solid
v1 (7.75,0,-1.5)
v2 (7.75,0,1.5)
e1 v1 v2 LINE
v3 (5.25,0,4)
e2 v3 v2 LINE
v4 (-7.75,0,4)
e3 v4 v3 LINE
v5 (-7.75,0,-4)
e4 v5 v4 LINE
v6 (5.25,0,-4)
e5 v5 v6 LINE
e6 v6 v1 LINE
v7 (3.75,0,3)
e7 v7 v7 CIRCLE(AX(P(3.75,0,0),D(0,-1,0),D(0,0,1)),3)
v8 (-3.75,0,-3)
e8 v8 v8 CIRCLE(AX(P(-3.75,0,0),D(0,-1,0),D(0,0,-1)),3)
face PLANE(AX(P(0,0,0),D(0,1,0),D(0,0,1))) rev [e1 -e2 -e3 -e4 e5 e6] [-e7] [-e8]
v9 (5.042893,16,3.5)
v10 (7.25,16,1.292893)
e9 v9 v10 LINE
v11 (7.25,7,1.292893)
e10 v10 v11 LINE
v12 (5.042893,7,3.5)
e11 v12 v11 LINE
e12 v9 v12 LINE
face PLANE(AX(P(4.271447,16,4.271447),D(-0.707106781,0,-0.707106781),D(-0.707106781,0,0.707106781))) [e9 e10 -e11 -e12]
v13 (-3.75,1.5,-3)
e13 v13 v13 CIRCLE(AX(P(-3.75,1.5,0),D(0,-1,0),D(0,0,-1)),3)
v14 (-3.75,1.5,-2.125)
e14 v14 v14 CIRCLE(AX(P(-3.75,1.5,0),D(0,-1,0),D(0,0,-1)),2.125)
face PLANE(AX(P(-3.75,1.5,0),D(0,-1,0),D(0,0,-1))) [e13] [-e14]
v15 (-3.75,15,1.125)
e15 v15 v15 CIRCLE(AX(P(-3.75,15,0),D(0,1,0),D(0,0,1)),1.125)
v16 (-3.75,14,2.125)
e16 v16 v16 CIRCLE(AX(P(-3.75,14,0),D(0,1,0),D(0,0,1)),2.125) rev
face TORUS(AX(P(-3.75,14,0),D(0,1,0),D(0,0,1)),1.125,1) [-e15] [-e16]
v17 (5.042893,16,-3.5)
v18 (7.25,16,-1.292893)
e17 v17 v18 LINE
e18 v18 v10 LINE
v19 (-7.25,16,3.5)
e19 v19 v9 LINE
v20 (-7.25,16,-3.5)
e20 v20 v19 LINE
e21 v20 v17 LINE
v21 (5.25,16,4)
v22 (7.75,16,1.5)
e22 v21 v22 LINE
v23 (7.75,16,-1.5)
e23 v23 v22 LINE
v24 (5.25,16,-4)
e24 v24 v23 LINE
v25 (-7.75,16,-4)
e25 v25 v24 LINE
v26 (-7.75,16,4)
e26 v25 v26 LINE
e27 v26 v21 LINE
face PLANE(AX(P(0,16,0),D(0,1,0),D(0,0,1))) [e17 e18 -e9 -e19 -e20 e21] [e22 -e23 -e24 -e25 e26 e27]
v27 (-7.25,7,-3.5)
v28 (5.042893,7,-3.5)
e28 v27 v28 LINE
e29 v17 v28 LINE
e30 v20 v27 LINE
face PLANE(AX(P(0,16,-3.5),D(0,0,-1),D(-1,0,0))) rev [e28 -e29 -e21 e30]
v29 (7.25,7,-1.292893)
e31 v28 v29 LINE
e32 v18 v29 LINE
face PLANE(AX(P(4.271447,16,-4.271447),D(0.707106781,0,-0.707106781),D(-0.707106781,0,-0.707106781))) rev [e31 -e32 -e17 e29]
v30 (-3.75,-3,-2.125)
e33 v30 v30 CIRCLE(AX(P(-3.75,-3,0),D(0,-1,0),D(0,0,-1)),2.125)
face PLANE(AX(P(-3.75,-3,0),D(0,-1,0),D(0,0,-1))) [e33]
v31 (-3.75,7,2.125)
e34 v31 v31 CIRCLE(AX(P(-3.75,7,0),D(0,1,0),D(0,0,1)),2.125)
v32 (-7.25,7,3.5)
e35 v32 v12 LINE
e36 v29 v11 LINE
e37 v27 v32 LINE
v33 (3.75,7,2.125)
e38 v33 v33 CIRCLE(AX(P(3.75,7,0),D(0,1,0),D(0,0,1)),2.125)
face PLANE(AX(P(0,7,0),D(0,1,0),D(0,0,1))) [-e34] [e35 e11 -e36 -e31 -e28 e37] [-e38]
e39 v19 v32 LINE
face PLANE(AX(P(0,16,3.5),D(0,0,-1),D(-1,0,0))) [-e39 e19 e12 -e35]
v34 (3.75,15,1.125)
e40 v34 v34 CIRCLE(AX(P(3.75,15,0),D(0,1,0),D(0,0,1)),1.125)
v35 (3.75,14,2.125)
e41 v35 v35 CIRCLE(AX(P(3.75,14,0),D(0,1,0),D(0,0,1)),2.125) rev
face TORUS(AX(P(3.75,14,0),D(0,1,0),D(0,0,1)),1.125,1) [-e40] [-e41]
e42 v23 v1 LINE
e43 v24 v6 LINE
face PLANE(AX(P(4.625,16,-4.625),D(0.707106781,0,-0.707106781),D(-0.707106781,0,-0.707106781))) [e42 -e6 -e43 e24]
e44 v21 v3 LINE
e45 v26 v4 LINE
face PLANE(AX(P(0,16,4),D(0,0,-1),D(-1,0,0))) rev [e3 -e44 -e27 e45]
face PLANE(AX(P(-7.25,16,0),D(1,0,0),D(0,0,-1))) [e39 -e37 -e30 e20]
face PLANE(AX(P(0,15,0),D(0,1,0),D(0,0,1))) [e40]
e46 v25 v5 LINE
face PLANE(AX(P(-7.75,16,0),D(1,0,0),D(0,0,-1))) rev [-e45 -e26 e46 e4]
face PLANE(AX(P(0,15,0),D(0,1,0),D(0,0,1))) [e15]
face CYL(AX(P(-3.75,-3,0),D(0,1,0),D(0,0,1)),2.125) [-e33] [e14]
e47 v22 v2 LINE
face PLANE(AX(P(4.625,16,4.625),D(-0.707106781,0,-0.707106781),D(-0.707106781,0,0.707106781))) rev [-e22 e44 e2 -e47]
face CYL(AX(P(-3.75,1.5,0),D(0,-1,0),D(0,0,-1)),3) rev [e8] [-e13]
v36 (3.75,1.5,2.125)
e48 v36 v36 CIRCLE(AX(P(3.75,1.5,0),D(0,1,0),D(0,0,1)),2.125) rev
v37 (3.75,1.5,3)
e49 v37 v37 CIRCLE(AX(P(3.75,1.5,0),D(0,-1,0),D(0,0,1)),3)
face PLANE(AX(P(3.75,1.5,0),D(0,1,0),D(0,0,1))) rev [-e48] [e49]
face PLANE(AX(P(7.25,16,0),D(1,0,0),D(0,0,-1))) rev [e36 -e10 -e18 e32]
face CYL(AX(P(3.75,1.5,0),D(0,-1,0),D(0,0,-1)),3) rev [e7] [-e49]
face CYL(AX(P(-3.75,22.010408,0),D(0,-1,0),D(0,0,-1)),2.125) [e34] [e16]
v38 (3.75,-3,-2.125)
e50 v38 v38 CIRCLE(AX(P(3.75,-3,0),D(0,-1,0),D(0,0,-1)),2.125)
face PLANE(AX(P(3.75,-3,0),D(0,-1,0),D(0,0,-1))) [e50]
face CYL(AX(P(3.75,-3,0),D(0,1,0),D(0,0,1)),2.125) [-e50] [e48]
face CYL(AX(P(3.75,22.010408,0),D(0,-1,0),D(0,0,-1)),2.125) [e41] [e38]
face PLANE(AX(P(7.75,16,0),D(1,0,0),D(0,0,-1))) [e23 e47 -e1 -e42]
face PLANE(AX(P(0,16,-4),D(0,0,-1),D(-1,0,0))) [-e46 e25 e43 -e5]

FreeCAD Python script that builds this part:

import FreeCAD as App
import Part
import Sketcher

V = App.Vector
Q = App.Units.Quantity


def edges_at(feature, points):
    """Names of the edges that pass closest to the given points."""
    edges = feature.Shape.Edges
    near = lambda p: min(range(len(edges)), key=lambda i: edges[i].distToShape(Part.Vertex(*p))[0])
    return sorted({f"Edge{near(p) + 1}" for p in points})


def faces_at(feature, points):
    """Names of the faces that lie closest to the given points."""
    faces = feature.Shape.Faces
    near = lambda p: min(range(len(faces)), key=lambda i: faces[i].distToShape(Part.Vertex(*p))[0])
    return sorted({f"Face{near(p) + 1}" for p in points})


def add_polygon(sketch, points):
    """Adds a closed chain of lines whose ends are joined by coincident constraints."""
    first, n = sketch.GeometryCount, len(points)
    for a, b in zip(points, points[1:] + points[:1]):
        sketch.addGeometry(Part.LineSegment(App.Vector(*a, 0), App.Vector(*b, 0)), False)
    for i in range(n):
        sketch.addConstraint(Sketcher.Constraint("Coincident", first + i, 2, first + (i + 1) % n, 1))

doc = App.newDocument("Part")
body = doc.addObject("PartDesign::Body", "Body")

sketch1 = doc.addObject("Sketcher::SketchObject", "Sketch")
body.addObject(sketch1)
sketch1.AttachmentSupport = (doc.XZ_Plane, [""])
sketch1.MapMode = "FlatFace"
add_polygon(sketch1, [(7.75, -1.5), (5.25, -4), (-7.75, -4), (-7.75, 4), (5.25, 4), (7.75, 1.5)])
sketch1.addConstraint([
    Sketcher.Constraint("Horizontal", 1),
    Sketcher.Constraint("Vertical", 2),
    Sketcher.Constraint("Horizontal", 3),
    Sketcher.Constraint("Vertical", 5),
    Sketcher.Constraint("Symmetric", 0, 2, 3, 2, -1),
    Sketcher.Constraint("Perpendicular", 0, 4),
    Sketcher.Constraint("Equal", 0, 4),
    Sketcher.Constraint("DistanceX", 1, 2, 1, 1, Q("13 mm")),
    Sketcher.Constraint("DistanceY", 2, 1, 2, 2, Q("8 mm")),
    Sketcher.Constraint("DistanceY", 5, 2, 5, 1, Q("3 mm")),
    Sketcher.Constraint("DistanceX", -1, 1, 0, 2, Q("5.25 mm")),
])
pad1 = doc.addObject("PartDesign::Pad", "Pad")
body.addObject(pad1)
pad1.Profile = sketch1
pad1.Length = 16
pad1.Reversed = True
doc.recompute()

thickness = doc.addObject("PartDesign::Thickness", "Thickness")
body.addObject(thickness)
thickness.Base = (pad1, faces_at(pad1, [(0, 16, 0)]))
thickness.Value = 0.5
thickness.Reversed = True
thickness.Join = "Intersection"

sketch2 = doc.addObject("Sketcher::SketchObject", "Sketch001")
body.addObject(sketch2)
sketch2.AttachmentSupport = (doc.XZ_Plane, [""])
sketch2.MapMode = "FlatFace"
sketch2.AttachmentOffset = App.Placement(V(0, 0, -0.5), App.Rotation())
add_polygon(sketch2, [(7.25, -1.292893), (7.25, 1.292893), (5.042893, 3.5), (-7.25, 3.5), (-7.25, -3.5), (5.042893, -3.5)])
sketch2.addConstraint([
    Sketcher.Constraint("Vertical", 0),
    Sketcher.Constraint("Horizontal", 2),
    Sketcher.Constraint("Vertical", 3),
    Sketcher.Constraint("Horizontal", 4),
    Sketcher.Constraint("Symmetric", 1, 2, 4, 2, -1),
    Sketcher.Constraint("Perpendicular", 1, 5),
    Sketcher.Constraint("Equal", 1, 5),
    Sketcher.Constraint("DistanceY", 3, 2, 3, 1, Q("7 mm")),
    Sketcher.Constraint("DistanceX", 2, 2, 0, 2, Q("14.5 mm")),
    Sketcher.Constraint("DistanceX", -1, 1, 0, 2, Q("7.25 mm")),
    Sketcher.Constraint("Distance", 1, Q("3.12132 mm")),
])
pad2 = doc.addObject("PartDesign::Pad", "Pad001")
body.addObject(pad2)
pad2.Profile = sketch2
pad2.Length = 6.5
pad2.Reversed = True

sketch3 = doc.addObject("Sketcher::SketchObject", "Sketch002")
body.addObject(sketch3)
sketch3.AttachmentSupport = (doc.XZ_Plane, [""])
sketch3.MapMode = "FlatFace"
sketch3.addGeometry([
    Part.Circle(V(-3.75, 0, 0), V(0, 0, 1), 3),
    Part.Circle(V(3.75, 0, 0), V(0, 0, 1), 3),
], False)
sketch3.addConstraint([
    Sketcher.Constraint("Equal", 0, 1),
    Sketcher.Constraint("Symmetric", 0, 3, 1, 3, -1, 1),
    Sketcher.Constraint("PointOnObject", 0, 3, -1),
    Sketcher.Constraint("Diameter", 0, Q("6 mm")),
    Sketcher.Constraint("DistanceX", 0, 3, 1, 3, Q("7.5 mm")),
])
pocket1 = doc.addObject("PartDesign::Pocket", "Pocket")
body.addObject(pocket1)
pocket1.Profile = sketch3
pocket1.Length = 1.5

sketch4 = doc.addObject("Sketcher::SketchObject", "Sketch003")
body.addObject(sketch4)
sketch4.AttachmentSupport = (doc.XZ_Plane, [""])
sketch4.MapMode = "FlatFace"
sketch4.AttachmentOffset = App.Placement(V(0, 0, -1.5), App.Rotation())
sketch4.addGeometry([
    Part.Circle(V(-3.75, 0, 0), V(0, 0, 1), 2.125),
    Part.Circle(V(3.75, 0, 0), V(0, 0, 1), 2.125),
], False)
sketch4.addConstraint([
    Sketcher.Constraint("Equal", 0, 1),
    Sketcher.Constraint("Symmetric", 0, 3, 1, 3, -1, 1),
    Sketcher.Constraint("PointOnObject", 0, 3, -1),
    Sketcher.Constraint("Diameter", 0, Q("4.25 mm")),
    Sketcher.Constraint("DistanceX", 0, 3, 1, 3, Q("7.5 mm")),
])
pad3 = doc.addObject("PartDesign::Pad", "Pad002")
body.addObject(pad3)
pad3.Profile = sketch4
pad3.Length = 4.5

sketch5 = doc.addObject("Sketcher::SketchObject", "Sketch004")
body.addObject(sketch5)
sketch5.AttachmentSupport = (doc.XZ_Plane, [""])
sketch5.MapMode = "FlatFace"
sketch5.AttachmentOffset = App.Placement(V(0, 0, -7), App.Rotation())
sketch5.addGeometry([
    Part.Circle(V(-3.75, 0, 0), V(0, 0, 1), 2.125),
    Part.Circle(V(3.75, 0, 0), V(0, 0, 1), 2.125),
], False)
sketch5.addConstraint([
    Sketcher.Constraint("Equal", 0, 1),
    Sketcher.Constraint("Symmetric", 0, 3, 1, 3, -1, 1),
    Sketcher.Constraint("PointOnObject", 0, 3, -1),
    Sketcher.Constraint("Diameter", 0, Q("4.25 mm")),
    Sketcher.Constraint("DistanceX", 0, 3, 1, 3, Q("7.5 mm")),
])
pad4 = doc.addObject("PartDesign::Pad", "Pad003")
body.addObject(pad4)
pad4.Profile = sketch5
pad4.Length = 8
pad4.Reversed = True
doc.recompute()

fillet = doc.addObject("PartDesign::Fillet", "Fillet")
body.addObject(fillet)
fillet.Base = (pad4, edges_at(pad4, [(-3.75, 15, 2.125), (3.75, 15, -2.125)]))
fillet.Radius = 1

doc.recompute()
